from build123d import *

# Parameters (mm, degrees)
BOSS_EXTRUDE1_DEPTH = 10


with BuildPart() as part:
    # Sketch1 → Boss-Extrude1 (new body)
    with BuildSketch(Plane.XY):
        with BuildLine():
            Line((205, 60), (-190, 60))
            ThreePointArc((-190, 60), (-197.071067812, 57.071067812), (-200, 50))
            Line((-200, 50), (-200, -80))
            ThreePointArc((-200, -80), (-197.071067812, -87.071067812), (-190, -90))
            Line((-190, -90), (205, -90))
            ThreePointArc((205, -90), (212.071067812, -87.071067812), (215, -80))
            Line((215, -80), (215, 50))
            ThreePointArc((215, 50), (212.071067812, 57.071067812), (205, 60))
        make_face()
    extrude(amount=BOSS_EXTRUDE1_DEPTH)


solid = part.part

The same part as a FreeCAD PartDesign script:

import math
import FreeCAD as App
import Part
import Sketcher
from FreeCAD import Vector

doc = App.newDocument("Part")
body = doc.addObject("PartDesign::Body", "Body")

sketch1 = body.newObject("Sketcher::SketchObject", "Sketch")
sketch1.AttachmentSupport = (doc.getObject("XY_Plane"), [""])
sketch1.MapMode = "FlatFace"
sketch1.addGeometry([
    Part.LineSegment(Vector(205, 60, 0), Vector(-190, 60, 0)),
    Part.ArcOfCircle(Part.Circle(Vector(-190, 50, 0), Vector(0, 0, 1), 10), math.radians(90), math.radians(180)),
    Part.LineSegment(Vector(-200, 50, 0), Vector(-200, -80, 0)),
    Part.ArcOfCircle(Part.Circle(Vector(-190, -80, 0), Vector(0, 0, 1), 10), math.radians(180), math.radians(270)),
    Part.LineSegment(Vector(-190, -90, 0), Vector(205, -90, 0)),
    Part.ArcOfCircle(Part.Circle(Vector(205, -80, 0), Vector(0, 0, 1), 10), math.radians(-90), math.radians(0)),
    Part.LineSegment(Vector(215, -80, 0), Vector(215, 50, 0)),
    Part.ArcOfCircle(Part.Circle(Vector(205, 50, 0), Vector(0, 0, 1), 10), math.radians(0), math.radians(90)),
], False)
sketch1.addConstraint([
    Sketcher.Constraint("Tangent", 0, 2, 1, 1),
    Sketcher.Constraint("Tangent", 1, 2, 2, 1),
    Sketcher.Constraint("Tangent", 2, 2, 3, 1),
    Sketcher.Constraint("Tangent", 3, 2, 4, 1),
    Sketcher.Constraint("Tangent", 4, 2, 5, 1),
    Sketcher.Constraint("Tangent", 5, 2, 6, 1),
    Sketcher.Constraint("Tangent", 6, 2, 7, 1),
    Sketcher.Constraint("Tangent", 7, 2, 0, 1),
    Sketcher.Constraint("Horizontal", 0),
    Sketcher.Constraint("Vertical", 2),
    Sketcher.Constraint("Horizontal", 4),
    Sketcher.Constraint("Vertical", 6),
    Sketcher.Constraint("Equal", 1, 3),
    Sketcher.Constraint("Equal", 3, 5),
    Sketcher.Constraint("Equal", 5, 7),
    Sketcher.Constraint("Radius", 1, 10.0),
    Sketcher.Constraint("DistanceX", 0, 2, 0, 1, 395.0),
    Sketcher.Constraint("DistanceY", 2, 2, 2, 1, 130.0),
    Sketcher.Constraint("DistanceX", 1, 3, -1, 1, 190.0),
    Sketcher.Constraint("DistanceY", -1, 1, 1, 3, 50.0),
])
pad1 = body.newObject("PartDesign::Pad", "Pad")
pad1.Profile = sketch1
pad1.Length = 10

doc.recompute()
